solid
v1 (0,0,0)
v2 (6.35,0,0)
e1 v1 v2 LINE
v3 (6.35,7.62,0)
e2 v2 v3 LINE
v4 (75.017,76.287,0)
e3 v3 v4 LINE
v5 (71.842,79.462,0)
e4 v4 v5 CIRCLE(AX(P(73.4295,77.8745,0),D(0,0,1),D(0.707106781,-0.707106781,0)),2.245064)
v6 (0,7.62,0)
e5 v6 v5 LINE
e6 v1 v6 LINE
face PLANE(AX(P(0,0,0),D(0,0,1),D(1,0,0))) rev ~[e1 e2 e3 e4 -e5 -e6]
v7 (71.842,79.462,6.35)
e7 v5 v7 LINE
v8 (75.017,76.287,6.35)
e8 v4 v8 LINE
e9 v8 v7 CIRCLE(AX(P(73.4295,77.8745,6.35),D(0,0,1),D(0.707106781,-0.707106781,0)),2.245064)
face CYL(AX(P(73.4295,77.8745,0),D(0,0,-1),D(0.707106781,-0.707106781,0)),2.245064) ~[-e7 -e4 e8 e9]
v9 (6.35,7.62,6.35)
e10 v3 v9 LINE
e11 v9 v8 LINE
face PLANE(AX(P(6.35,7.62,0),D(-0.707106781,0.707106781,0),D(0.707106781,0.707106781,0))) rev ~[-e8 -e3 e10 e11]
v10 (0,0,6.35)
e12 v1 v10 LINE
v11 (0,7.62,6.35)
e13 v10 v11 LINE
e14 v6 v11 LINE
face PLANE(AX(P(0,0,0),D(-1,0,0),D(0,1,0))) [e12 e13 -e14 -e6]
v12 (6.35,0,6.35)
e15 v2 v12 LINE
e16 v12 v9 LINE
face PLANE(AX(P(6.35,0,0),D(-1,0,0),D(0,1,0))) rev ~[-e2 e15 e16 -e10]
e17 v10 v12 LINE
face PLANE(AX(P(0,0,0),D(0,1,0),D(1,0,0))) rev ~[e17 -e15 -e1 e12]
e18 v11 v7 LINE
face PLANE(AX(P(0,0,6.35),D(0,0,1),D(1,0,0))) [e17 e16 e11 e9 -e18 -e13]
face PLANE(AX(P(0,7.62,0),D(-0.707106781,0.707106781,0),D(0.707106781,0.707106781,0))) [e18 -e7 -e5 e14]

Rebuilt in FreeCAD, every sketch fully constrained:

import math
import FreeCAD as App
import Part
import Sketcher

V = App.Vector
Q = App.Units.Quantity

doc = App.newDocument("Part")
params = doc.addObject("Spreadsheet::Sheet", "Params")
for row, (alias, value) in enumerate([
    ("sketch1_length", "4 in"),
    ("sketch1_height", "0.3 in"),
    ("sketch1_width", "0.25 in"),
    ("pad1_length", "0.25 in"),
], start=1):
    params.set(f"A{row}", alias)
    params.set(f"B{row}", "=" + value)
    params.setAlias(f"B{row}", alias)

body = doc.addObject("PartDesign::Body", "Body")

# Sketch on XY plane
sketch1 = body.newObject("Sketcher::SketchObject", "Sketch")
sketch1.AttachmentSupport = (doc.getObject("XY_Plane"), [""])
sketch1.MapMode = "FlatFace"
sketch1.addGeometry([
    Part.LineSegment(V(0, 7.6, 0), V(0, 0, 0)),  # 0
    Part.LineSegment(V(0, 0, 0), V(6.3, 0, 0)),  # 1
    Part.LineSegment(V(6.3, 0, 0), V(6.3, 7.6, 0)),  # 2
    Part.LineSegment(V(6.3, 7.6, 0), V(75, 76.3, 0)),  # 3
    Part.ArcOfCircle(Part.Circle(V(73.4, 77.9, 0), V(0, 0, 1), 2.2), math.radians(-45), math.radians(135)),  # 4
    Part.LineSegment(V(71.8, 79.5, 0), V(0, 7.6, 0)),  # 5
], False)
sketch1.addConstraint([
    Sketcher.Constraint("Coincident", 0, 2, 1, 1),
    Sketcher.Constraint("Coincident", 1, 2, 2, 1),
    Sketcher.Constraint("Coincident", 2, 2, 3, 1),
    Sketcher.Constraint("Tangent", 3, 2, 4, 1),
    Sketcher.Constraint("Tangent", 4, 2, 5, 1),
    Sketcher.Constraint("Coincident", 5, 2, 0, 1),
    Sketcher.Constraint("Vertical", 0),
    Sketcher.Constraint("Horizontal", 1),
    Sketcher.Constraint("Vertical", 2),
    Sketcher.Constraint("Coincident", 0, 2, -1, 1),
    Sketcher.Constraint("Parallel", 3, 5),
    Sketcher.Constraint("Horizontal", 2, 2, 5, 2),
    Sketcher.Constraint("Distance", 5, Q("4 in")),
    Sketcher.Constraint("DistanceY", 0, 2, 0, 1, Q("0.3 in")),
    Sketcher.Constraint("Angle", 3, Q("45 deg")),
    Sketcher.Constraint("DistanceX", 1, 1, 1, 2, Q("0.25 in")),
])
sketch1.setExpression("Constraints[12]", "Params.sketch1_length")
sketch1.setExpression("Constraints[13]", "Params.sketch1_height")
sketch1.setExpression("Constraints[15]", "Params.sketch1_width")
pad1 = body.newObject("PartDesign::Pad", "Pad")
pad1.Profile = sketch1
pad1.setExpression("Length", "Params.pad1_length")

doc.recompute()
